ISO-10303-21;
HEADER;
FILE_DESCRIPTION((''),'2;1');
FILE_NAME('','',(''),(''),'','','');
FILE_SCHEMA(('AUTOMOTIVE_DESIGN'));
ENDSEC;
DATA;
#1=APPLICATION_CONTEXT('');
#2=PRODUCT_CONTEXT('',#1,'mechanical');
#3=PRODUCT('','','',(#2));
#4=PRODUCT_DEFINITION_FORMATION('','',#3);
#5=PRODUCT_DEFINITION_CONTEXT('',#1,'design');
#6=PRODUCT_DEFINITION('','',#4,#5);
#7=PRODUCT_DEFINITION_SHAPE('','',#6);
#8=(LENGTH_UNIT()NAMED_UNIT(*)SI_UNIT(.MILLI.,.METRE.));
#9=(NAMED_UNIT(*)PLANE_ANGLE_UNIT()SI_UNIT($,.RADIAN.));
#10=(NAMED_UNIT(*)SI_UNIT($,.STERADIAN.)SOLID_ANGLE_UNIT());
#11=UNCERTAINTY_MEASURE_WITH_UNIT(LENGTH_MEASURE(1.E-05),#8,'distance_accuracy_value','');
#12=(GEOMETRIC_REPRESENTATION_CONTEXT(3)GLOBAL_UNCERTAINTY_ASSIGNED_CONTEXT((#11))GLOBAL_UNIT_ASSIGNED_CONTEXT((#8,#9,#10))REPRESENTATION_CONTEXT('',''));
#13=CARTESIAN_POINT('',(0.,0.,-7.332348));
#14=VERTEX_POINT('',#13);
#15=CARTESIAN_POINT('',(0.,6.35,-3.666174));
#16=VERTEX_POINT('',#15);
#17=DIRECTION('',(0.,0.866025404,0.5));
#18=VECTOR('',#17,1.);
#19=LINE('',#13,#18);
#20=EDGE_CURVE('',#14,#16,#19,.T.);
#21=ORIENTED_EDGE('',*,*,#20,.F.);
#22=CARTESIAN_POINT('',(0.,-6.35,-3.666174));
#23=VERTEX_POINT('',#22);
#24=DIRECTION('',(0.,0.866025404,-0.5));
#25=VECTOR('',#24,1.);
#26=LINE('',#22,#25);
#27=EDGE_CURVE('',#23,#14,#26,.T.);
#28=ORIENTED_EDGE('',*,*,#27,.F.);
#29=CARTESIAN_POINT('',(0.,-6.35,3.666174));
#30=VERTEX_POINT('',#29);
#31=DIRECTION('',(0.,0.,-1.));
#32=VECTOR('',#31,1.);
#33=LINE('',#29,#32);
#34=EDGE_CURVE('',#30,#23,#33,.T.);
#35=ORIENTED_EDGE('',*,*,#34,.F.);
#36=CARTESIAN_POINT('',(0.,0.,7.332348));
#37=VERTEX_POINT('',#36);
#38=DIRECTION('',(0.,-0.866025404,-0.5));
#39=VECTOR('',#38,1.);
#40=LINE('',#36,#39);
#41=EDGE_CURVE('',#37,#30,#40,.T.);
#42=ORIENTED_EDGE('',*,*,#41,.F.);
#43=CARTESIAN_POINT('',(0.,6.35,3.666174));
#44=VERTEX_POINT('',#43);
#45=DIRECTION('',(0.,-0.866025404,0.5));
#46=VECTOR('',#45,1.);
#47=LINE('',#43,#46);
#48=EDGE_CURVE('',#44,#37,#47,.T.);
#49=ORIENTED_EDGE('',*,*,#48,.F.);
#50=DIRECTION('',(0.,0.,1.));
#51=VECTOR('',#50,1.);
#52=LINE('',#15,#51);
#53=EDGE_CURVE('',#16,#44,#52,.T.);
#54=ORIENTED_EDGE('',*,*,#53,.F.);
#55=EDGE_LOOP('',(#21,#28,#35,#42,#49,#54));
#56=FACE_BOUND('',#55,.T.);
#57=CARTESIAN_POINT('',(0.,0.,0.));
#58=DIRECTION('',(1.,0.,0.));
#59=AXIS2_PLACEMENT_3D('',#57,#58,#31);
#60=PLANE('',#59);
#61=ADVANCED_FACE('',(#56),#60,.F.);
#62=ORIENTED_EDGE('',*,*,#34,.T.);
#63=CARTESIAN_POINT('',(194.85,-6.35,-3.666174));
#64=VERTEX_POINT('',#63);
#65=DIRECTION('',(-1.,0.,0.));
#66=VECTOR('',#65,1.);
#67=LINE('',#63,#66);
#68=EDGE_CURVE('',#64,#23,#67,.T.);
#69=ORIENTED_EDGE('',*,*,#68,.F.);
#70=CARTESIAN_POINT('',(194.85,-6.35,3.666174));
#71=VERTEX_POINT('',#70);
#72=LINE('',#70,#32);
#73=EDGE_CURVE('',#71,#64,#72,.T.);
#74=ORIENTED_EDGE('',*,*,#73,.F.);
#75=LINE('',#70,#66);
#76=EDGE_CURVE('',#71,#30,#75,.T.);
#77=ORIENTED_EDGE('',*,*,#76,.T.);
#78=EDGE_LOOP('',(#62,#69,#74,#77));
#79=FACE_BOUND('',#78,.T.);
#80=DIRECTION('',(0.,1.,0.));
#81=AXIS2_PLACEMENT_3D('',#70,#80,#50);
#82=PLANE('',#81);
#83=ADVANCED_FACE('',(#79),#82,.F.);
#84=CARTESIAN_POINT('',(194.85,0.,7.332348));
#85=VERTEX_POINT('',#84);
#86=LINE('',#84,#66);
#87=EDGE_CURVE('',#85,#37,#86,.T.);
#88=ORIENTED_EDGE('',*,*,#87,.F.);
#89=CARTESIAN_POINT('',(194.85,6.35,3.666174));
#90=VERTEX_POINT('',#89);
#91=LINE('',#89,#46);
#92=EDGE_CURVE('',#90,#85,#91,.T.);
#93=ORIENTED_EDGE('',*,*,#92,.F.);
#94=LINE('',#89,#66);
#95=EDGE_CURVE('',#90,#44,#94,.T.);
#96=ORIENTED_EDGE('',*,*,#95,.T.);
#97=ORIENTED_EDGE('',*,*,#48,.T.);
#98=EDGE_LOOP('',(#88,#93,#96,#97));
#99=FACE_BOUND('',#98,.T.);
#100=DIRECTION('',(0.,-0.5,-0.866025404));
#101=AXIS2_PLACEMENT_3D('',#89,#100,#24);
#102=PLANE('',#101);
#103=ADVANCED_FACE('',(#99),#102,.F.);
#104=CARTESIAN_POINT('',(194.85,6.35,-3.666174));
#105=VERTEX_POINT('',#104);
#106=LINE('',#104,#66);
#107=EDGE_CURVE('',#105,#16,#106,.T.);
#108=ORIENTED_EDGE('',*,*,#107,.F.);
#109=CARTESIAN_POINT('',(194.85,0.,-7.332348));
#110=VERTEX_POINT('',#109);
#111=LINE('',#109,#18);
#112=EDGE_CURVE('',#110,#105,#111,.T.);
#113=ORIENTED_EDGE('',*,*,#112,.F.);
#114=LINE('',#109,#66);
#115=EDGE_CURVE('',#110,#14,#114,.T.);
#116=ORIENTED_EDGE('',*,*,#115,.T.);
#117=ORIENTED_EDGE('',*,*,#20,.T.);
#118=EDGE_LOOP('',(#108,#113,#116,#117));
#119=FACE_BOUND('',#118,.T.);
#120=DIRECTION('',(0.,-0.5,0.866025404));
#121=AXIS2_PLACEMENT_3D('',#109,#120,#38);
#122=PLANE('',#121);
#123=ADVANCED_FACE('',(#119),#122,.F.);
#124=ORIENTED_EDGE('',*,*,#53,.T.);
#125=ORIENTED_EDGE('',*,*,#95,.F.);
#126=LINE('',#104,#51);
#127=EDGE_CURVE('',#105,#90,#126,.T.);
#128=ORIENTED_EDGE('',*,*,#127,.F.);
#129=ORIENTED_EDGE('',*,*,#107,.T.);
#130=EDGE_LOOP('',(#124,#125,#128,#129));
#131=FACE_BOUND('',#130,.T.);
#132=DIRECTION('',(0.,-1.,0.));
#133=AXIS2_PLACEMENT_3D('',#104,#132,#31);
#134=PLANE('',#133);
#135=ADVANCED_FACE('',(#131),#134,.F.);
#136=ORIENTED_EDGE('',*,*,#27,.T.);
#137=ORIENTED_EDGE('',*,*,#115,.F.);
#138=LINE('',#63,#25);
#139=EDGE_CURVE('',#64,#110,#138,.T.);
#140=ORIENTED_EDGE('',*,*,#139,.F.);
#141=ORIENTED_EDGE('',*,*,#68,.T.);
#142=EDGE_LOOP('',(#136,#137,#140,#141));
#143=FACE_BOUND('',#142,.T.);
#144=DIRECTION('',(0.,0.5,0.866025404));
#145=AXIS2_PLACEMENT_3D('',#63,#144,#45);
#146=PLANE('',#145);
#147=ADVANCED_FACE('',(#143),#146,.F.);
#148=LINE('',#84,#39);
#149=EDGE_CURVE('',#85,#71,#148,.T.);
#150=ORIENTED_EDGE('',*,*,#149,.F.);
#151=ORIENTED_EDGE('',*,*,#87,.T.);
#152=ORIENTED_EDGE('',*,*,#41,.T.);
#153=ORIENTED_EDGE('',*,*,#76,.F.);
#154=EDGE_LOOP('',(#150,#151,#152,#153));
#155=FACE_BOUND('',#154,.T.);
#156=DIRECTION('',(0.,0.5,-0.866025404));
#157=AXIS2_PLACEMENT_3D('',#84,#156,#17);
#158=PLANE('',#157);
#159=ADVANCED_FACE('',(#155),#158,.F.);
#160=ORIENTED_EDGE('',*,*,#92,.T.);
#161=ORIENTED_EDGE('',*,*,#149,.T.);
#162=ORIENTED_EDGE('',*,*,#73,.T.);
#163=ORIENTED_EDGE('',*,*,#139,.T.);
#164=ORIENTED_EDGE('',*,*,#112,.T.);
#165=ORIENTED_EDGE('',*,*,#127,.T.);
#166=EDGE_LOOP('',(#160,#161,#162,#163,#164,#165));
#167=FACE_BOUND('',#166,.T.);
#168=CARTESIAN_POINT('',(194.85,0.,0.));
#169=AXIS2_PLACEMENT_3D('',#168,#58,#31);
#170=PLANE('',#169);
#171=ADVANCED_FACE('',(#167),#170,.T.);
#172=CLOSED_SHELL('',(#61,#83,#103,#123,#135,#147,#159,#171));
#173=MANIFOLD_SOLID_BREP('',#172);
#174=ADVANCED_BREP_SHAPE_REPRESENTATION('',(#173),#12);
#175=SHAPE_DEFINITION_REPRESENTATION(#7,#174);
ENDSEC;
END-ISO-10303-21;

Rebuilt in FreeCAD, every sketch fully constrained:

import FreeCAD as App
import Part
import Sketcher
from FreeCAD import Vector
Q = App.Units.Quantity

doc = App.newDocument("Part")
params = doc.addObject("Spreadsheet::Sheet", "Params")
for row, (alias, value) in enumerate([
    ("pad1_length", "194.85 mm"),
], start=1):
    params.set(f"A{row}", alias)
    params.set(f"B{row}", "=" + value)
    params.setAlias(f"B{row}", alias)

body = doc.addObject("PartDesign::Body", "Body")

# Sketch on YZ plane
sketch1 = doc.addObject("Sketcher::SketchObject", "Sketch")
body.addObject(sketch1)
sketch1.AttachmentSupport = (doc.YZ_Plane, [""])
sketch1.MapMode = "FlatFace"
sketch1.addGeometry([
    Part.LineSegment(Vector(0, -7, 0), Vector(6, -4, 0)),  # 0
    Part.LineSegment(Vector(6, -4, 0), Vector(6, 4, 0)),  # 1
    Part.LineSegment(Vector(6, 4, 0), Vector(0, 7, 0)),  # 2
    Part.LineSegment(Vector(0, 7, 0), Vector(-6, 4, 0)),  # 3
    Part.LineSegment(Vector(-6, 4, 0), Vector(-6, -4, 0)),  # 4
    Part.LineSegment(Vector(-6, -4, 0), Vector(0, -7, 0)),  # 5
], False)
sketch1.addConstraint([
    Sketcher.Constraint("Coincident", 0, 2, 1, 1),
    Sketcher.Constraint("Coincident", 1, 2, 2, 1),
    Sketcher.Constraint("Coincident", 2, 2, 3, 1),
    Sketcher.Constraint("Coincident", 3, 2, 4, 1),
    Sketcher.Constraint("Coincident", 4, 2, 5, 1),
    Sketcher.Constraint("Coincident", 5, 2, 0, 1),
    Sketcher.Constraint("Vertical", 1),
    Sketcher.Constraint("Vertical", 4),
    Sketcher.Constraint("Symmetric", 0, 2, 3, 2, -1, 1),
    Sketcher.Constraint("Symmetric", 2, 2, 5, 2, -1, 1),
    Sketcher.Constraint("PointOnObject", 2, 2, -2),
    Sketcher.Constraint("Parallel", 2, 5),
    Sketcher.Constraint("Horizontal", 1, 2, 3, 2),
    Sketcher.Constraint("Angle", 0, Q("30 deg")),
    Sketcher.Constraint("DistanceX", 3, 2, 1, 2, Q("12.7 mm")),
    Sketcher.Constraint("DistanceY", 1, 1, 1, 2, Q("7.332348 mm")),
])
pad1 = doc.addObject("PartDesign::Pad", "Pad")
body.addObject(pad1)
pad1.Profile = sketch1
pad1.setExpression("Length", "Params.pad1_length")

doc.recompute()
